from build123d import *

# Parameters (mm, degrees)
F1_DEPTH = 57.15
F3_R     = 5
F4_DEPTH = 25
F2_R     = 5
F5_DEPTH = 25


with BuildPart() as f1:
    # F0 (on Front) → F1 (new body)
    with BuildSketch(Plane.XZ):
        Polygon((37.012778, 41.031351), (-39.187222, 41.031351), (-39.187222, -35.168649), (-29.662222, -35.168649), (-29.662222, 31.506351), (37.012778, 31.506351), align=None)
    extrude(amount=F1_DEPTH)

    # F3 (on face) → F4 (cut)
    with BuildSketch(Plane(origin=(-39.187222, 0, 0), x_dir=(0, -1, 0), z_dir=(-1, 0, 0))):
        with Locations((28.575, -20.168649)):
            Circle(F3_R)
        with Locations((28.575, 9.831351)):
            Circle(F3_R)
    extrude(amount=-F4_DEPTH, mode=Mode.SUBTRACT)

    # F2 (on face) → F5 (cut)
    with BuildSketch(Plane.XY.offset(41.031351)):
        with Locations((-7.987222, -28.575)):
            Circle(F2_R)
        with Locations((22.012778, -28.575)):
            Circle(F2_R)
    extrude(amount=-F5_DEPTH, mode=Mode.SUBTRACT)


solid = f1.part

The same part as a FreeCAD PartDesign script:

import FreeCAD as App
import Part
import Sketcher
Q = App.Units.Quantity

doc = App.newDocument("Part")
params = doc.addObject("Spreadsheet::Sheet", "Params")
for row, (alias, value) in enumerate([
    ("sketch1_width", "3 in"),
    ("sketch1_width2", "0.375 in"),
    ("pad1_length", "2.25 in"),
    ("pocket1_length", "25 mm"),
    ("pocket2_length", "25 mm"),
], start=1):
    params.set(f"A{row}", alias)
    params.set(f"B{row}", "=" + value)
    params.setAlias(f"B{row}", alias)

body = doc.addObject("PartDesign::Body", "Body")

# Sketch on XZ plane
sketch1 = body.newObject("Sketcher::SketchObject", "Sketch")
sketch1.AttachmentSupport = (doc.getObject("XZ_Plane"), [""])
sketch1.MapMode = "FlatFace"
sketch1.addGeometry([
    Part.LineSegment(App.Vector(37.012778, 41.031351, 0), App.Vector(-39.187222, 41.031351, 0)),  # 0
    Part.LineSegment(App.Vector(-39.187222, 41.031351, 0), App.Vector(-39.187222, -35.168649, 0)),  # 1
    Part.LineSegment(App.Vector(-39.187222, -35.168649, 0), App.Vector(-29.662222, -35.168649, 0)),  # 2
    Part.LineSegment(App.Vector(-29.662222, -35.168649, 0), App.Vector(-29.662222, 31.506351, 0)),  # 3
    Part.LineSegment(App.Vector(-29.662222, 31.506351, 0), App.Vector(37.012778, 31.506351, 0)),  # 4
    Part.LineSegment(App.Vector(37.012778, 31.506351, 0), App.Vector(37.012778, 41.031351, 0)),  # 5
], False)
sketch1.addConstraint([
    Sketcher.Constraint("Coincident", 0, 2, 1, 1),
    Sketcher.Constraint("Coincident", 1, 2, 2, 1),
    Sketcher.Constraint("Coincident", 2, 2, 3, 1),
    Sketcher.Constraint("Coincident", 3, 2, 4, 1),
    Sketcher.Constraint("Coincident", 4, 2, 5, 1),
    Sketcher.Constraint("Coincident", 5, 2, 0, 1),
    Sketcher.Constraint("Horizontal", 0),
    Sketcher.Constraint("Vertical", 1),
    Sketcher.Constraint("Horizontal", 2),
    Sketcher.Constraint("Vertical", 3),
    Sketcher.Constraint("Horizontal", 4),
    Sketcher.Constraint("Vertical", 5),
    Sketcher.Constraint("Equal", 0, 1),
    Sketcher.Constraint("Equal", 4, 3),
    Sketcher.Constraint("DistanceX", 0, 2, 0, 1, Q("3 in")),
    Sketcher.Constraint("DistanceX", 2, 1, 2, 2, Q("0.375 in")),
    Sketcher.Constraint("DistanceX", 0, 2, -1, 1, Q("39.187222 mm")),
    Sketcher.Constraint("DistanceY", -1, 1, 0, 2, Q("41.031351 mm")),
])
sketch1.setExpression("Constraints[14]", "Params.sketch1_width")
sketch1.setExpression("Constraints[15]", "Params.sketch1_width2")
pad1 = body.newObject("PartDesign::Pad", "Pad")
pad1.Profile = sketch1
pad1.setExpression("Length", "Params.pad1_length")

# Sketch on YZ plane
sketch2 = body.newObject("Sketcher::SketchObject", "Sketch001")
sketch2.AttachmentSupport = (doc.getObject("YZ_Plane"), [""])
sketch2.MapMode = "FlatFace"
sketch2.AttachmentOffset = App.Placement(App.Vector(0, 0, -39.187222), App.Rotation())
sketch2.addGeometry([
    Part.Circle(App.Vector(-28.575, -20.168649, 0), App.Vector(0, 0, 1), 5),
    Part.Circle(App.Vector(-28.575, 9.831351, 0), App.Vector(0, 0, 1), 5),
], False)
sketch2.addConstraint([
    Sketcher.Constraint("Equal", 0, 1),
    Sketcher.Constraint("Vertical", 0, 3, 1, 3),
    Sketcher.Constraint("Diameter", 0, Q("10 mm")),
    Sketcher.Constraint("DistanceX", 0, 3, -1, 1, Q("1.125 in")),
    Sketcher.Constraint("DistanceY", 0, 3, 1, 3, Q("30 mm")),
    Sketcher.Constraint("DistanceY", 0, 3, -1, 1, Q("20.168649 mm")),
])
pocket1 = body.newObject("PartDesign::Pocket", "Pocket")
pocket1.Profile = sketch2
pocket1.setExpression("Length", "Params.pocket1_length")
pocket1.Reversed = True

# Sketch on XY plane
sketch3 = body.newObject("Sketcher::SketchObject", "Sketch002")
sketch3.AttachmentSupport = (doc.getObject("XY_Plane"), [""])
sketch3.MapMode = "FlatFace"
sketch3.AttachmentOffset = App.Placement(App.Vector(0, 0, 41.031351), App.Rotation())
sketch3.addGeometry([
    Part.Circle(App.Vector(-7.987222, -28.575, 0), App.Vector(0, 0, 1), 5),
    Part.Circle(App.Vector(22.012778, -28.575, 0), App.Vector(0, 0, 1), 5),
], False)
sketch3.addConstraint([
    Sketcher.Constraint("Equal", 0, 1),
    Sketcher.Constraint("Horizontal", 0, 3, 1, 3),
    Sketcher.Constraint("Diameter", 0, Q("10 mm")),
    Sketcher.Constraint("DistanceY", 0, 3, -1, 1, Q("1.125 in")),
    Sketcher.Constraint("DistanceX", 0, 3, 1, 3, Q("30 mm")),
    Sketcher.Constraint("DistanceX", -1, 1, 1, 3, Q("22.012778 mm")),
])
pocket2 = body.newObject("PartDesign::Pocket", "Pocket001")
pocket2.Profile = sketch3
pocket2.setExpression("Length", "Params.pocket2_length")

doc.recompute()
